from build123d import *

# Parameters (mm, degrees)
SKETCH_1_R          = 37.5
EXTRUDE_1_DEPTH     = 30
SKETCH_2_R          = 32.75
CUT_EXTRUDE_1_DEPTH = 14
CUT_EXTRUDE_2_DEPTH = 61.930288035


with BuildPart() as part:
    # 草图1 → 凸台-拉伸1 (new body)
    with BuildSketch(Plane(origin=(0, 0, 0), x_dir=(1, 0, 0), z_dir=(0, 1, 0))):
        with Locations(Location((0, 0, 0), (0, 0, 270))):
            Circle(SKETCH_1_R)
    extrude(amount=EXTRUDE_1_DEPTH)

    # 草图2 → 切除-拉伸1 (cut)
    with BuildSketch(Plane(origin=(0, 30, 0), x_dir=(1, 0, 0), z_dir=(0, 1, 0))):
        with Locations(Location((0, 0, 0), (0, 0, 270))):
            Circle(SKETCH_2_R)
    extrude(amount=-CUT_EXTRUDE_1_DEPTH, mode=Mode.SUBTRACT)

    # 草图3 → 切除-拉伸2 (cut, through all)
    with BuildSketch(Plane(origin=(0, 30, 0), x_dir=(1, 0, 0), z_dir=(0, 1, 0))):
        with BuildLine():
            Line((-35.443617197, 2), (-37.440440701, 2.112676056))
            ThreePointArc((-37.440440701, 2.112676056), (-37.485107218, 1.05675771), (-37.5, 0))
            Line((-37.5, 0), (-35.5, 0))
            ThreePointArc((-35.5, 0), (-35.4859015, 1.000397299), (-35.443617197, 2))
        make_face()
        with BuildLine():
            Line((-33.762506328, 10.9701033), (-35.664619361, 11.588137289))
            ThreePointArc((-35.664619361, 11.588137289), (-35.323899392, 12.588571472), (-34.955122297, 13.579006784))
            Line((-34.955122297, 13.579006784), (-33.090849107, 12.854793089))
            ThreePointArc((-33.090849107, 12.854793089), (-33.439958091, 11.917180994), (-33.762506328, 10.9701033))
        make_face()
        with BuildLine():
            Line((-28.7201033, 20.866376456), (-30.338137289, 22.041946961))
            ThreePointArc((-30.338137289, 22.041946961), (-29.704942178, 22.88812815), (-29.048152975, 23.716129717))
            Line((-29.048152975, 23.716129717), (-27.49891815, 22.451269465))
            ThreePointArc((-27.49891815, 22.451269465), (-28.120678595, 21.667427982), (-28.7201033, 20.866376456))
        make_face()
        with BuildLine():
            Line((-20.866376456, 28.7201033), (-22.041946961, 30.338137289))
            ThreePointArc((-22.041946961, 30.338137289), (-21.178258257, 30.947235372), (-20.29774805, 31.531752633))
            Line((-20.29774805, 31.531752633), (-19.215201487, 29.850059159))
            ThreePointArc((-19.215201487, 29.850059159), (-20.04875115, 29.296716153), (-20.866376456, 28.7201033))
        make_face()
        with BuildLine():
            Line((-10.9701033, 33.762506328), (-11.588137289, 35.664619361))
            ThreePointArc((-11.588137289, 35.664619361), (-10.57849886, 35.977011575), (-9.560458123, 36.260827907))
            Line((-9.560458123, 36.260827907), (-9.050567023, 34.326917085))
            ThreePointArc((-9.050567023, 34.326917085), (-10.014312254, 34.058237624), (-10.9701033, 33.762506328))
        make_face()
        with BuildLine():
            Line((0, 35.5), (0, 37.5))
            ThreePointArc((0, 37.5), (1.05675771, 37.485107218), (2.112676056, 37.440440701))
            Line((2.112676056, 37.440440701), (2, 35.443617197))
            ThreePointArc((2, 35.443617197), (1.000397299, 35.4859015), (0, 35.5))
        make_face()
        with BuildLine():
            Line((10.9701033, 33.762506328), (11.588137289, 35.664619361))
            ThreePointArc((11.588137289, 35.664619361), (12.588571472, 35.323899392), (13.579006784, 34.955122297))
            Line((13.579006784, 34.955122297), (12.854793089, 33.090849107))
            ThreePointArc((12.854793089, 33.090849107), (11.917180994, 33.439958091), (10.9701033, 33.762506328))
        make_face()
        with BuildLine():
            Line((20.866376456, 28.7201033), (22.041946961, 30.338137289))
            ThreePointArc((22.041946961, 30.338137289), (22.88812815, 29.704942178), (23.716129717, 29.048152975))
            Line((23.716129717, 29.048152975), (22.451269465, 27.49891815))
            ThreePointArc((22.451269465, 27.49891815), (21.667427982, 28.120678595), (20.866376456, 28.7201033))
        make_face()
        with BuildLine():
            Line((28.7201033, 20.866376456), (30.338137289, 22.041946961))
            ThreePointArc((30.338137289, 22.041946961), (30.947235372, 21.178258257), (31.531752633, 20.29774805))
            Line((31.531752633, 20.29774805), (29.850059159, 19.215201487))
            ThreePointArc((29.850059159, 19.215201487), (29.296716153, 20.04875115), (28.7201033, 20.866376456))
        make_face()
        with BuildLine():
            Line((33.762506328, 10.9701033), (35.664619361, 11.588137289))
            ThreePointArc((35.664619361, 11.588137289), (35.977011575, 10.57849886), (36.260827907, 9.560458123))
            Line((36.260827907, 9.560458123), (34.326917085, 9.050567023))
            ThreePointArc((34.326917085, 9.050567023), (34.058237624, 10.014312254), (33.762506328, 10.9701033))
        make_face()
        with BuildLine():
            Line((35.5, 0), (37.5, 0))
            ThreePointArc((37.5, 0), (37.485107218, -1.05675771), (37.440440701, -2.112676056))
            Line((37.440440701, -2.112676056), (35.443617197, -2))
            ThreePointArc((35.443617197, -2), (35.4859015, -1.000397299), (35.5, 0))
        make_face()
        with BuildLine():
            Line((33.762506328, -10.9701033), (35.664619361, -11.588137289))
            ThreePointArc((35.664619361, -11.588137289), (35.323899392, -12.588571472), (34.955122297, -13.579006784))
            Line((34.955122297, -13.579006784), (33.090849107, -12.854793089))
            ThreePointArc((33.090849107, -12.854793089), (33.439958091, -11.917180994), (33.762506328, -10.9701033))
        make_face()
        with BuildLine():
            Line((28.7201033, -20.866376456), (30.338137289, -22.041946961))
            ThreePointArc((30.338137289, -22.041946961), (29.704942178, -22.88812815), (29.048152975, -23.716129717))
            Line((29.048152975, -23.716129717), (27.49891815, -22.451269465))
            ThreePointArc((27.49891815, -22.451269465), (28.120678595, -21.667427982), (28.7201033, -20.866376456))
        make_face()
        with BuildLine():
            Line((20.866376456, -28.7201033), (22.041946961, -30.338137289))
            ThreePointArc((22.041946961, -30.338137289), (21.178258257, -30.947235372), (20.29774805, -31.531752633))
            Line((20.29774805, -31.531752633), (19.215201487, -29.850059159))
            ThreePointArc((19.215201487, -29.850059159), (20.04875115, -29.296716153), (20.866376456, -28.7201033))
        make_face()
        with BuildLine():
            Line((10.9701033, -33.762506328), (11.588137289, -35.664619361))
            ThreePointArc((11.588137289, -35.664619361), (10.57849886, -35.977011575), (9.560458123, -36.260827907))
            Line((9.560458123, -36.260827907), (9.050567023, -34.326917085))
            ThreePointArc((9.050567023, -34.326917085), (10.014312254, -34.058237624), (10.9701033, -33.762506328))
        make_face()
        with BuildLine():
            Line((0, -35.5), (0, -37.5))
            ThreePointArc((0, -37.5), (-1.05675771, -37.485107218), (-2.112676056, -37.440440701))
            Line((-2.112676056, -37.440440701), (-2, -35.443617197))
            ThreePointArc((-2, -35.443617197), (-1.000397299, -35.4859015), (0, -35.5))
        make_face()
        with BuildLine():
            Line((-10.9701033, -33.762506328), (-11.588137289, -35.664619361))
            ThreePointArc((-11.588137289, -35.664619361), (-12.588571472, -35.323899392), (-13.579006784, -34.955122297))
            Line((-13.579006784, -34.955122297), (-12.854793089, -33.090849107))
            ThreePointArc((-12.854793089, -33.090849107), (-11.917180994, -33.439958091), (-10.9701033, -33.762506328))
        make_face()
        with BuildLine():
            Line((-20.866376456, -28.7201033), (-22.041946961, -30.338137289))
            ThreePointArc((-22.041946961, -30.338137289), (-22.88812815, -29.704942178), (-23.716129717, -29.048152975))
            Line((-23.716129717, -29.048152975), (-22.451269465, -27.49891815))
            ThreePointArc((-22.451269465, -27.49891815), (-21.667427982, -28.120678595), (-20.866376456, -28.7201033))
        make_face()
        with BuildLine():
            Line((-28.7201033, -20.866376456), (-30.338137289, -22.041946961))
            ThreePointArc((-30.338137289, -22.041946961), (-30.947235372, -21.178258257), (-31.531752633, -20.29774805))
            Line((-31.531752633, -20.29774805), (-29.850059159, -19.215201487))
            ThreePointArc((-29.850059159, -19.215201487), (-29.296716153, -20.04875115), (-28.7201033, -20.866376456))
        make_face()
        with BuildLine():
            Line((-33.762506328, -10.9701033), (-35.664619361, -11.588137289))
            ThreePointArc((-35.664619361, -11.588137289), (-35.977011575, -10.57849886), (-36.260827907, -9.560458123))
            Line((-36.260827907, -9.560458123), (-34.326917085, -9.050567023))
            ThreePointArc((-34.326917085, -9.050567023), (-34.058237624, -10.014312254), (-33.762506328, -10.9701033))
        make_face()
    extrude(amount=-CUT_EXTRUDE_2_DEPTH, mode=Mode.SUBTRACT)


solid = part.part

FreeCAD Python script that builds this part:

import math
import FreeCAD as App
import Part
import Sketcher
Q = App.Units.Quantity

doc = App.newDocument("Part")
body = doc.addObject("PartDesign::Body", "Body")

# Sketch on XZ plane
sketch1 = body.newObject("Sketcher::SketchObject", "Sketch")
sketch1.AttachmentSupport = (doc.getObject("XZ_Plane"), [""])
sketch1.MapMode = "FlatFace"
sketch1.addGeometry(Part.Circle(App.Vector(0, 0, 0), App.Vector(0, 0, 1), 37.5), False)
sketch1.addConstraint(Sketcher.Constraint("Coincident", 0, 3, -1, 1))
sketch1.addConstraint(Sketcher.Constraint("Diameter", 0, Q("75 mm")))
pad1 = body.newObject("PartDesign::Pad", "Pad")
pad1.Profile = sketch1
pad1.Length = 30
pad1.Reversed = True

# Sketch on XZ plane
sketch2 = body.newObject("Sketcher::SketchObject", "Sketch001")
sketch2.AttachmentSupport = (doc.getObject("XZ_Plane"), [""])
sketch2.MapMode = "FlatFace"
sketch2.AttachmentOffset = App.Placement(App.Vector(0, 0, -30), App.Rotation())
sketch2.addGeometry(Part.Circle(App.Vector(0, 0, 0), App.Vector(0, 0, 1), 32.75), False)
sketch2.addConstraint(Sketcher.Constraint("Coincident", 0, 3, -1, 1))
sketch2.addConstraint(Sketcher.Constraint("Diameter", 0, Q("65.5 mm")))
pocket1 = body.newObject("PartDesign::Pocket", "Pocket")
pocket1.Profile = sketch2
pocket1.Length = 14
pocket1.Reversed = True

# Sketch on XZ plane
sketch3 = body.newObject("Sketcher::SketchObject", "Sketch002")
sketch3.AttachmentSupport = (doc.getObject("XZ_Plane"), [""])
sketch3.MapMode = "FlatFace"
sketch3.AttachmentOffset = App.Placement(App.Vector(0, 0, -30), App.Rotation())
sketch3.addGeometry(Part.LineSegment(App.Vector(-35.443617, -2, 0), App.Vector(-37.440441, -2.112676, 0)), False)
sketch3.addGeometry(Part.ArcOfCircle(Part.Circle(App.Vector(0, 0, 0), App.Vector(0, 0, 1), 37.5), math.radians(180), math.radians(183.229641)), False)
sketch3.addGeometry(Part.LineSegment(App.Vector(-37.5, 0, 0), App.Vector(-35.5, 0, 0)), False)
sketch3.addGeometry(Part.ArcOfCircle(Part.Circle(App.Vector(-0.000001, 0, 0), App.Vector(0, 0, 1), 35.499999), math.radians(180), math.radians(183.229641)), False)
sketch3.addGeometry(Part.LineSegment(App.Vector(-35.664619, -11.588137, 0), App.Vector(-33.762506, -10.970103, 0)), False)
sketch3.addGeometry(Part.ArcOfCircle(Part.Circle(App.Vector(0, 0, 0), App.Vector(0, 0, 1), 35.5), math.radians(-162), math.radians(-158.770359)), False)
sketch3.addGeometry(Part.LineSegment(App.Vector(-33.090849, -12.854793, 0), App.Vector(-34.955122, -13.579007, 0)), False)
sketch3.addGeometry(Part.ArcOfCircle(Part.Circle(App.Vector(0.000002, 0.000001, 0), App.Vector(0, 0, 1), 37.500002), math.radians(-162), math.radians(-158.770359)), False)
sketch3.addGeometry(Part.LineSegment(App.Vector(-30.338137, -22.041947, 0), App.Vector(-28.720103, -20.866376, 0)), False)
sketch3.addGeometry(Part.ArcOfCircle(Part.Circle(App.Vector(0, 0, 0), App.Vector(0, 0, 1), 35.5), math.radians(-144), math.radians(-140.770359)), False)
sketch3.addGeometry(Part.LineSegment(App.Vector(-27.498918, -22.451269, 0), App.Vector(-29.048153, -23.71613, 0)), False)
sketch3.addGeometry(Part.ArcOfCircle(Part.Circle(App.Vector(0, 0, 0), App.Vector(0, 0, 1), 37.5), math.radians(-144), math.radians(-140.770359)), False)
sketch3.addGeometry(Part.LineSegment(App.Vector(-22.041947, -30.338137, 0), App.Vector(-20.866376, -28.720103, 0)), False)
sketch3.addGeometry(Part.ArcOfCircle(Part.Circle(App.Vector(-0.000001, -0.000001, 0), App.Vector(0, 0, 1), 35.499998), math.radians(-126), math.radians(-122.770359)), False)
sketch3.addGeometry(Part.LineSegment(App.Vector(-19.215201, -29.850059, 0), App.Vector(-20.297748, -31.531753, 0)), False)
sketch3.addGeometry(Part.ArcOfCircle(Part.Circle(App.Vector(0.000001, 0.000001, 0), App.Vector(0, 0, 1), 37.500001), math.radians(-126), math.radians(-122.770359)), False)
sketch3.addGeometry(Part.LineSegment(App.Vector(-11.588137, -35.664619, 0), App.Vector(-10.970103, -33.762506, 0)), False)
sketch3.addGeometry(Part.ArcOfCircle(Part.Circle(App.Vector(0, 0, 0), App.Vector(0, 0, 1), 35.5), math.radians(-108), math.radians(-104.770359)), False)
sketch3.addGeometry(Part.LineSegment(App.Vector(-9.050567, -34.326917, 0), App.Vector(-9.560458, -36.260828, 0)), False)
sketch3.addGeometry(Part.ArcOfCircle(Part.Circle(App.Vector(0, 0, 0), App.Vector(0, 0, 1), 37.5), math.radians(-108), math.radians(-104.770359)), False)
sketch3.addGeometry(Part.LineSegment(App.Vector(0, -37.5, 0), App.Vector(0, -35.5, 0)), False)
sketch3.addGeometry(Part.ArcOfCircle(Part.Circle(App.Vector(0, -0.000001, 0), App.Vector(0, 0, 1), 35.499999), math.radians(-90), math.radians(-86.770359)), False)
sketch3.addGeometry(Part.LineSegment(App.Vector(2, -35.443617, 0), App.Vector(2.112676, -37.440441, 0)), False)
sketch3.addGeometry(Part.ArcOfCircle(Part.Circle(App.Vector(0, 0, 0), App.Vector(0, 0, 1), 37.5), math.radians(-90), math.radians(-86.770359)), False)
sketch3.addGeometry(Part.LineSegment(App.Vector(11.588137, -35.664619, 0), App.Vector(10.970103, -33.762506, 0)), False)
sketch3.addGeometry(Part.ArcOfCircle(Part.Circle(App.Vector(0, 0, 0), App.Vector(0, 0, 1), 35.5), math.radians(-72), math.radians(-68.770359)), False)
sketch3.addGeometry(Part.LineSegment(App.Vector(12.854793, -33.090849, 0), App.Vector(13.579007, -34.955122, 0)), False)
sketch3.addGeometry(Part.ArcOfCircle(Part.Circle(App.Vector(-0.000001, 0.000002, 0), App.Vector(0, 0, 1), 37.500002), math.radians(-72), math.radians(-68.770359)), False)
sketch3.addGeometry(Part.LineSegment(App.Vector(22.041947, -30.338137, 0), App.Vector(20.866376, -28.720103, 0)), False)
sketch3.addGeometry(Part.ArcOfCircle(Part.Circle(App.Vector(0, 0, 0), App.Vector(0, 0, 1), 35.5), math.radians(-54), math.radians(-50.770359)), False)
sketch3.addGeometry(Part.LineSegment(App.Vector(22.451269, -27.498918, 0), App.Vector(23.71613, -29.048153, 0)), False)
sketch3.addGeometry(Part.ArcOfCircle(Part.Circle(App.Vector(0, 0, 0), App.Vector(0, 0, 1), 37.5), math.radians(-54), math.radians(-50.770359)), False)
sketch3.addGeometry(Part.LineSegment(App.Vector(30.338137, -22.041947, 0), App.Vector(28.720103, -20.866376, 0)), False)
sketch3.addGeometry(Part.ArcOfCircle(Part.Circle(App.Vector(0.000001, -0.000001, 0), App.Vector(0, 0, 1), 35.499998), math.radians(-36), math.radians(-32.770359)), False)
sketch3.addGeometry(Part.LineSegment(App.Vector(29.850059, -19.215201, 0), App.Vector(31.531753, -20.297748, 0)), False)
sketch3.addGeometry(Part.ArcOfCircle(Part.Circle(App.Vector(-0.000001, 0.000001, 0), App.Vector(0, 0, 1), 37.500001), math.radians(-36), math.radians(-32.770359)), False)
sketch3.addGeometry(Part.LineSegment(App.Vector(35.664619, -11.588137, 0), App.Vector(33.762506, -10.970103, 0)), False)
sketch3.addGeometry(Part.ArcOfCircle(Part.Circle(App.Vector(0, 0, 0), App.Vector(0, 0, 1), 35.5), math.radians(-18), math.radians(-14.770359)), False)
sketch3.addGeometry(Part.LineSegment(App.Vector(34.326917, -9.050567, 0), App.Vector(36.260828, -9.560458, 0)), False)
sketch3.addGeometry(Part.ArcOfCircle(Part.Circle(App.Vector(0, 0, 0), App.Vector(0, 0, 1), 37.5), math.radians(-18), math.radians(-14.770359)), False)
sketch3.addGeometry(Part.LineSegment(App.Vector(37.5, 0, 0), App.Vector(35.5, 0, 0)), False)
sketch3.addGeometry(Part.ArcOfCircle(Part.Circle(App.Vector(0.000001, 0, 0), App.Vector(0, 0, 1), 35.499999), math.radians(0), math.radians(3.229641)), False)
sketch3.addGeometry(Part.LineSegment(App.Vector(35.443617, 2, 0), App.Vector(37.440441, 2.112676, 0)), False)
sketch3.addGeometry(Part.ArcOfCircle(Part.Circle(App.Vector(0, 0, 0), App.Vector(0, 0, 1), 37.5), math.radians(0), math.radians(3.229641)), False)
sketch3.addGeometry(Part.LineSegment(App.Vector(35.664619, 11.588137, 0), App.Vector(33.762506, 10.970103, 0)), False)
sketch3.addGeometry(Part.ArcOfCircle(Part.Circle(App.Vector(0, 0, 0), App.Vector(0, 0, 1), 35.5), math.radians(18), math.radians(21.229641)), False)
sketch3.addGeometry(Part.LineSegment(App.Vector(33.090849, 12.854793, 0), App.Vector(34.955122, 13.579007, 0)), False)
sketch3.addGeometry(Part.ArcOfCircle(Part.Circle(App.Vector(-0.000002, -0.000001, 0), App.Vector(0, 0, 1), 37.500002), math.radians(18), math.radians(21.229641)), False)
sketch3.addGeometry(Part.LineSegment(App.Vector(30.338137, 22.041947, 0), App.Vector(28.720103, 20.866376, 0)), False)
sketch3.addGeometry(Part.ArcOfCircle(Part.Circle(App.Vector(0, 0, 0), App.Vector(0, 0, 1), 35.5), math.radians(36), math.radians(39.229641)), False)
sketch3.addGeometry(Part.LineSegment(App.Vector(27.498918, 22.451269, 0), App.Vector(29.048153, 23.71613, 0)), False)
sketch3.addGeometry(Part.ArcOfCircle(Part.Circle(App.Vector(0, 0, 0), App.Vector(0, 0, 1), 37.5), math.radians(36), math.radians(39.229641)), False)
sketch3.addGeometry(Part.LineSegment(App.Vector(22.041947, 30.338137, 0), App.Vector(20.866376, 28.720103, 0)), False)
sketch3.addGeometry(Part.ArcOfCircle(Part.Circle(App.Vector(0.000001, 0.000001, 0), App.Vector(0, 0, 1), 35.499998), math.radians(54), math.radians(57.229641)), False)
sketch3.addGeometry(Part.LineSegment(App.Vector(19.215201, 29.850059, 0), App.Vector(20.297748, 31.531753, 0)), False)
sketch3.addGeometry(Part.ArcOfCircle(Part.Circle(App.Vector(-0.000001, -0.000001, 0), App.Vector(0, 0, 1), 37.500001), math.radians(54), math.radians(57.229641)), False)
sketch3.addGeometry(Part.LineSegment(App.Vector(11.588137, 35.664619, 0), App.Vector(10.970103, 33.762506, 0)), False)
sketch3.addGeometry(Part.ArcOfCircle(Part.Circle(App.Vector(0, 0, 0), App.Vector(0, 0, 1), 35.5), math.radians(72), math.radians(75.229641)), False)
sketch3.addGeometry(Part.LineSegment(App.Vector(9.050567, 34.326917, 0), App.Vector(9.560458, 36.260828, 0)), False)
sketch3.addGeometry(Part.ArcOfCircle(Part.Circle(App.Vector(0, 0, 0), App.Vector(0, 0, 1), 37.5), math.radians(72), math.radians(75.229641)), False)
sketch3.addGeometry(Part.LineSegment(App.Vector(0, 37.5, 0), App.Vector(0, 35.5, 0)), False)
sketch3.addGeometry(Part.ArcOfCircle(Part.Circle(App.Vector(0, 0.000001, 0), App.Vector(0, 0, 1), 35.499999), math.radians(90), math.radians(93.229641)), False)
sketch3.addGeometry(Part.LineSegment(App.Vector(-2, 35.443617, 0), App.Vector(-2.112676, 37.440441, 0)), False)
sketch3.addGeometry(Part.ArcOfCircle(Part.Circle(App.Vector(0, 0, 0), App.Vector(0, 0, 1), 37.5), math.radians(90), math.radians(93.229641)), False)
sketch3.addGeometry(Part.LineSegment(App.Vector(-11.588137, 35.664619, 0), App.Vector(-10.970103, 33.762506, 0)), False)
sketch3.addGeometry(Part.ArcOfCircle(Part.Circle(App.Vector(0, 0, 0), App.Vector(0, 0, 1), 35.5), math.radians(108), math.radians(111.229641)), False)
sketch3.addGeometry(Part.LineSegment(App.Vector(-12.854793, 33.090849, 0), App.Vector(-13.579007, 34.955122, 0)), False)
sketch3.addGeometry(Part.ArcOfCircle(Part.Circle(App.Vector(0.000001, -0.000002, 0), App.Vector(0, 0, 1), 37.500002), math.radians(108), math.radians(111.229641)), False)
sketch3.addGeometry(Part.LineSegment(App.Vector(-22.041947, 30.338137, 0), App.Vector(-20.866376, 28.720103, 0)), False)
sketch3.addGeometry(Part.ArcOfCircle(Part.Circle(App.Vector(0, 0, 0), App.Vector(0, 0, 1), 35.5), math.radians(126), math.radians(129.229641)), False)
sketch3.addGeometry(Part.LineSegment(App.Vector(-22.451269, 27.498918, 0), App.Vector(-23.71613, 29.048153, 0)), False)
sketch3.addGeometry(Part.ArcOfCircle(Part.Circle(App.Vector(0, 0, 0), App.Vector(0, 0, 1), 37.5), math.radians(126), math.radians(129.229641)), False)
sketch3.addGeometry(Part.LineSegment(App.Vector(-30.338137, 22.041947, 0), App.Vector(-28.720103, 20.866376, 0)), False)
sketch3.addGeometry(Part.ArcOfCircle(Part.Circle(App.Vector(-0.000001, 0.000001, 0), App.Vector(0, 0, 1), 35.499998), math.radians(144), math.radians(147.229641)), False)
sketch3.addGeometry(Part.LineSegment(App.Vector(-29.850059, 19.215201, 0), App.Vector(-31.531753, 20.297748, 0)), False)
sketch3.addGeometry(Part.ArcOfCircle(Part.Circle(App.Vector(0.000001, -0.000001, 0), App.Vector(0, 0, 1), 37.500001), math.radians(144), math.radians(147.229641)), False)
sketch3.addGeometry(Part.LineSegment(App.Vector(-35.664619, 11.588137, 0), App.Vector(-33.762506, 10.970103, 0)), False)
sketch3.addGeometry(Part.ArcOfCircle(Part.Circle(App.Vector(0, 0, 0), App.Vector(0, 0, 1), 35.5), math.radians(162), math.radians(165.229641)), False)
sketch3.addGeometry(Part.LineSegment(App.Vector(-34.326917, 9.050567, 0), App.Vector(-36.260828, 9.560458, 0)), False)
sketch3.addGeometry(Part.ArcOfCircle(Part.Circle(App.Vector(0, 0, 0), App.Vector(0, 0, 1), 37.5), math.radians(162), math.radians(165.229641)), False)
sketch3.addConstraint(Sketcher.Constraint("Coincident", 0, 2, 1, 2))
sketch3.addConstraint(Sketcher.Constraint("Coincident", 1, 1, 2, 1))
sketch3.addConstraint(Sketcher.Constraint("Coincident", 2, 2, 3, 1))
sketch3.addConstraint(Sketcher.Constraint("Coincident", 3, 2, 0, 1))
sketch3.addConstraint(Sketcher.Constraint("Coincident", 4, 2, 5, 1))
sketch3.addConstraint(Sketcher.Constraint("Coincident", 5, 2, 6, 1))
sketch3.addConstraint(Sketcher.Constraint("Coincident", 6, 2, 7, 2))
sketch3.addConstraint(Sketcher.Constraint("Coincident", 7, 1, 4, 1))
sketch3.addConstraint(Sketcher.Constraint("Coincident", 8, 2, 9, 1))
sketch3.addConstraint(Sketcher.Constraint("Coincident", 9, 2, 10, 1))
sketch3.addConstraint(Sketcher.Constraint("Coincident", 10, 2, 11, 2))
sketch3.addConstraint(Sketcher.Constraint("Coincident", 11, 1, 8, 1))
sketch3.addConstraint(Sketcher.Constraint("Coincident", 12, 2, 13, 1))
sketch3.addConstraint(Sketcher.Constraint("Coincident", 13, 2, 14, 1))
sketch3.addConstraint(Sketcher.Constraint("Coincident", 14, 2, 15, 2))
sketch3.addConstraint(Sketcher.Constraint("Coincident", 15, 1, 12, 1))
sketch3.addConstraint(Sketcher.Constraint("Coincident", 16, 2, 17, 1))
sketch3.addConstraint(Sketcher.Constraint("Coincident", 17, 2, 18, 1))
sketch3.addConstraint(Sketcher.Constraint("Coincident", 18, 2, 19, 2))
sketch3.addConstraint(Sketcher.Constraint("Coincident", 19, 1, 16, 1))
sketch3.addConstraint(Sketcher.Constraint("Coincident", 20, 2, 21, 1))
sketch3.addConstraint(Sketcher.Constraint("Coincident", 21, 2, 22, 1))
sketch3.addConstraint(Sketcher.Constraint("Coincident", 22, 2, 23, 2))
sketch3.addConstraint(Sketcher.Constraint("Coincident", 23, 1, 20, 1))
sketch3.addConstraint(Sketcher.Constraint("Coincident", 24, 2, 25, 1))
sketch3.addConstraint(Sketcher.Constraint("Coincident", 25, 2, 26, 1))
sketch3.addConstraint(Sketcher.Constraint("Coincident", 26, 2, 27, 2))
sketch3.addConstraint(Sketcher.Constraint("Coincident", 27, 1, 24, 1))
sketch3.addConstraint(Sketcher.Constraint("Coincident", 28, 2, 29, 1))
sketch3.addConstraint(Sketcher.Constraint("Coincident", 29, 2, 30, 1))
sketch3.addConstraint(Sketcher.Constraint("Coincident", 30, 2, 31, 2))
sketch3.addConstraint(Sketcher.Constraint("Coincident", 31, 1, 28, 1))
sketch3.addConstraint(Sketcher.Constraint("Coincident", 32, 2, 33, 1))
sketch3.addConstraint(Sketcher.Constraint("Coincident", 33, 2, 34, 1))
sketch3.addConstraint(Sketcher.Constraint("Coincident", 34, 2, 35, 2))
sketch3.addConstraint(Sketcher.Constraint("Coincident", 35, 1, 32, 1))
sketch3.addConstraint(Sketcher.Constraint("Coincident", 36, 2, 37, 1))
sketch3.addConstraint(Sketcher.Constraint("Coincident", 37, 2, 38, 1))
sketch3.addConstraint(Sketcher.Constraint("Coincident", 38, 2, 39, 2))
sketch3.addConstraint(Sketcher.Constraint("Coincident", 39, 1, 36, 1))
sketch3.addConstraint(Sketcher.Constraint("Coincident", 40, 2, 41, 1))
sketch3.addConstraint(Sketcher.Constraint("Coincident", 41, 2, 42, 1))
sketch3.addConstraint(Sketcher.Constraint("Coincident", 42, 2, 43, 2))
sketch3.addConstraint(Sketcher.Constraint("Coincident", 43, 1, 40, 1))
sketch3.addConstraint(Sketcher.Constraint("Coincident", 44, 2, 45, 1))
sketch3.addConstraint(Sketcher.Constraint("Coincident", 45, 2, 46, 1))
sketch3.addConstraint(Sketcher.Constraint("Coincident", 46, 2, 47, 2))
sketch3.addConstraint(Sketcher.Constraint("Coincident", 47, 1, 44, 1))
sketch3.addConstraint(Sketcher.Constraint("Coincident", 48, 2, 49, 1))
sketch3.addConstraint(Sketcher.Constraint("Coincident", 49, 2, 50, 1))
sketch3.addConstraint(Sketcher.Constraint("Coincident", 50, 2, 51, 2))
sketch3.addConstraint(Sketcher.Constraint("Coincident", 51, 1, 48, 1))
sketch3.addConstraint(Sketcher.Constraint("Coincident", 52, 2, 53, 1))
sketch3.addConstraint(Sketcher.Constraint("Coincident", 53, 2, 54, 1))
sketch3.addConstraint(Sketcher.Constraint("Coincident", 54, 2, 55, 2))
sketch3.addConstraint(Sketcher.Constraint("Coincident", 55, 1, 52, 1))
sketch3.addConstraint(Sketcher.Constraint("Coincident", 56, 2, 57, 1))
sketch3.addConstraint(Sketcher.Constraint("Coincident", 57, 2, 58, 1))
sketch3.addConstraint(Sketcher.Constraint("Coincident", 58, 2, 59, 2))
sketch3.addConstraint(Sketcher.Constraint("Coincident", 59, 1, 56, 1))
sketch3.addConstraint(Sketcher.Constraint("Coincident", 60, 2, 61, 1))
sketch3.addConstraint(Sketcher.Constraint("Coincident", 61, 2, 62, 1))
sketch3.addConstraint(Sketcher.Constraint("Coincident", 62, 2, 63, 2))
sketch3.addConstraint(Sketcher.Constraint("Coincident", 63, 1, 60, 1))
sketch3.addConstraint(Sketcher.Constraint("Coincident", 64, 2, 65, 1))
sketch3.addConstraint(Sketcher.Constraint("Coincident", 65, 2, 66, 1))
sketch3.addConstraint(Sketcher.Constraint("Coincident", 66, 2, 67, 2))
sketch3.addConstraint(Sketcher.Constraint("Coincident", 67, 1, 64, 1))
sketch3.addConstraint(Sketcher.Constraint("Coincident", 68, 2, 69, 1))
sketch3.addConstraint(Sketcher.Constraint("Coincident", 69, 2, 70, 1))
sketch3.addConstraint(Sketcher.Constraint("Coincident", 70, 2, 71, 2))
sketch3.addConstraint(Sketcher.Constraint("Coincident", 71, 1, 68, 1))
sketch3.addConstraint(Sketcher.Constraint("Coincident", 72, 2, 73, 1))
sketch3.addConstraint(Sketcher.Constraint("Coincident", 73, 2, 74, 1))
sketch3.addConstraint(Sketcher.Constraint("Coincident", 74, 2, 75, 2))
sketch3.addConstraint(Sketcher.Constraint("Coincident", 75, 1, 72, 1))
sketch3.addConstraint(Sketcher.Constraint("Coincident", 76, 2, 77, 1))
sketch3.addConstraint(Sketcher.Constraint("Coincident", 77, 2, 78, 1))
sketch3.addConstraint(Sketcher.Constraint("Coincident", 78, 2, 79, 2))
sketch3.addConstraint(Sketcher.Constraint("Coincident", 79, 1, 76, 1))
sketch3.addConstraint(Sketcher.Constraint("Horizontal", 2))
sketch3.addConstraint(Sketcher.Constraint("Vertical", 20))
sketch3.addConstraint(Sketcher.Constraint("Horizontal", 40))
sketch3.addConstraint(Sketcher.Constraint("Vertical", 60))
sketch3.addConstraint(Sketcher.Constraint("Coincident", 1, 3, -1, 1))
sketch3.addConstraint(Sketcher.Constraint("Coincident", 3, 3, -1, 1))
sketch3.addConstraint(Sketcher.Constraint("Coincident", 5, 3, -1, 1))
sketch3.addConstraint(Sketcher.Constraint("Coincident", 7, 3, -1, 1))
sketch3.addConstraint(Sketcher.Constraint("Coincident", 9, 3, -1, 1))
sketch3.addConstraint(Sketcher.Constraint("Coincident", 11, 3, -1, 1))
sketch3.addConstraint(Sketcher.Constraint("Coincident", 13, 3, -1, 1))
sketch3.addConstraint(Sketcher.Constraint("Coincident", 15, 3, -1, 1))
sketch3.addConstraint(Sketcher.Constraint("Coincident", 17, 3, -1, 1))
sketch3.addConstraint(Sketcher.Constraint("Coincident", 19, 3, -1, 1))
sketch3.addConstraint(Sketcher.Constraint("Coincident", 21, 3, -1, 1))
sketch3.addConstraint(Sketcher.Constraint("Coincident", 23, 3, -1, 1))
sketch3.addConstraint(Sketcher.Constraint("Coincident", 25, 3, -1, 1))
sketch3.addConstraint(Sketcher.Constraint("Coincident", 27, 3, -1, 1))
sketch3.addConstraint(Sketcher.Constraint("Coincident", 29, 3, -1, 1))
sketch3.addConstraint(Sketcher.Constraint("Coincident", 31, 3, -1, 1))
sketch3.addConstraint(Sketcher.Constraint("Coincident", 33, 3, -1, 1))
sketch3.addConstraint(Sketcher.Constraint("Coincident", 35, 3, -1, 1))
sketch3.addConstraint(Sketcher.Constraint("Coincident", 37, 3, -1, 1))
sketch3.addConstraint(Sketcher.Constraint("Coincident", 39, 3, -1, 1))
sketch3.addConstraint(Sketcher.Constraint("Coincident", 41, 3, -1, 1))
sketch3.addConstraint(Sketcher.Constraint("Coincident", 43, 3, -1, 1))
sketch3.addConstraint(Sketcher.Constraint("Coincident", 45, 3, -1, 1))
sketch3.addConstraint(Sketcher.Constraint("Coincident", 47, 3, -1, 1))
sketch3.addConstraint(Sketcher.Constraint("Coincident", 49, 3, -1, 1))
sketch3.addConstraint(Sketcher.Constraint("Coincident", 51, 3, -1, 1))
sketch3.addConstraint(Sketcher.Constraint("Coincident", 53, 3, -1, 1))
sketch3.addConstraint(Sketcher.Constraint("Coincident", 55, 3, -1, 1))
sketch3.addConstraint(Sketcher.Constraint("Coincident", 57, 3, -1, 1))
sketch3.addConstraint(Sketcher.Constraint("Coincident", 59, 3, -1, 1))
sketch3.addConstraint(Sketcher.Constraint("Coincident", 61, 3, -1, 1))
sketch3.addConstraint(Sketcher.Constraint("Coincident", 63, 3, -1, 1))
sketch3.addConstraint(Sketcher.Constraint("Coincident", 65, 3, -1, 1))
sketch3.addConstraint(Sketcher.Constraint("Coincident", 67, 3, -1, 1))
sketch3.addConstraint(Sketcher.Constraint("Coincident", 69, 3, -1, 1))
sketch3.addConstraint(Sketcher.Constraint("Coincident", 71, 3, -1, 1))
sketch3.addConstraint(Sketcher.Constraint("Coincident", 73, 3, -1, 1))
sketch3.addConstraint(Sketcher.Constraint("Coincident", 75, 3, -1, 1))
sketch3.addConstraint(Sketcher.Constraint("Coincident", 77, 3, -1, 1))
sketch3.addConstraint(Sketcher.Constraint("Coincident", 79, 3, -1, 1))
sketch3.addConstraint(Sketcher.Constraint("Equal", 3, 5))
sketch3.addConstraint(Sketcher.Constraint("Equal", 1, 7))
sketch3.addConstraint(Sketcher.Constraint("Equal", 5, 9))
sketch3.addConstraint(Sketcher.Constraint("Equal", 7, 11))
sketch3.addConstraint(Sketcher.Constraint("Equal", 9, 13))
sketch3.addConstraint(Sketcher.Constraint("Equal", 11, 15))
sketch3.addConstraint(Sketcher.Constraint("Equal", 13, 17))
sketch3.addConstraint(Sketcher.Constraint("Equal", 15, 19))
sketch3.addConstraint(Sketcher.Constraint("Equal", 17, 21))
sketch3.addConstraint(Sketcher.Constraint("Equal", 19, 23))
sketch3.addConstraint(Sketcher.Constraint("Equal", 21, 25))
sketch3.addConstraint(Sketcher.Constraint("Equal", 23, 27))
sketch3.addConstraint(Sketcher.Constraint("Equal", 25, 29))
sketch3.addConstraint(Sketcher.Constraint("Equal", 27, 31))
sketch3.addConstraint(Sketcher.Constraint("Equal", 29, 33))
sketch3.addConstraint(Sketcher.Constraint("Equal", 31, 35))
sketch3.addConstraint(Sketcher.Constraint("Equal", 33, 37))
sketch3.addConstraint(Sketcher.Constraint("Equal", 35, 39))
sketch3.addConstraint(Sketcher.Constraint("Equal", 37, 41))
sketch3.addConstraint(Sketcher.Constraint("Equal", 39, 43))
sketch3.addConstraint(Sketcher.Constraint("Equal", 41, 45))
sketch3.addConstraint(Sketcher.Constraint("Equal", 43, 47))
sketch3.addConstraint(Sketcher.Constraint("Equal", 45, 49))
sketch3.addConstraint(Sketcher.Constraint("Equal", 47, 51))
sketch3.addConstraint(Sketcher.Constraint("Equal", 49, 53))
sketch3.addConstraint(Sketcher.Constraint("Equal", 51, 55))
sketch3.addConstraint(Sketcher.Constraint("Equal", 53, 57))
sketch3.addConstraint(Sketcher.Constraint("Equal", 55, 59))
sketch3.addConstraint(Sketcher.Constraint("Equal", 57, 61))
sketch3.addConstraint(Sketcher.Constraint("Equal", 59, 63))
sketch3.addConstraint(Sketcher.Constraint("Equal", 61, 65))
sketch3.addConstraint(Sketcher.Constraint("Equal", 63, 67))
sketch3.addConstraint(Sketcher.Constraint("Equal", 65, 69))
sketch3.addConstraint(Sketcher.Constraint("Equal", 67, 71))
sketch3.addConstraint(Sketcher.Constraint("Equal", 69, 73))
sketch3.addConstraint(Sketcher.Constraint("Equal", 71, 75))
sketch3.addConstraint(Sketcher.Constraint("Equal", 73, 77))
sketch3.addConstraint(Sketcher.Constraint("Equal", 75, 79))
sketch3.addConstraint(Sketcher.Constraint("PointOnObject", 1, 1, -1))
sketch3.addConstraint(Sketcher.Constraint("PointOnObject", 20, 2, -2))
sketch3.addConstraint(Sketcher.Constraint("PointOnObject", 40, 2, -1))
sketch3.addConstraint(Sketcher.Constraint("PointOnObject", 60, 2, -2))
sketch3.addConstraint(Sketcher.Constraint("Perpendicular", 0, 22))
sketch3.addConstraint(Sketcher.Constraint("Perpendicular", 4, 24))
sketch3.addConstraint(Sketcher.Constraint("Perpendicular", 6, 26))
sketch3.addConstraint(Sketcher.Constraint("Perpendicular", 8, 28))
sketch3.addConstraint(Sketcher.Constraint("Perpendicular", 10, 30))
sketch3.addConstraint(Sketcher.Constraint("Perpendicular", 12, 32))
sketch3.addConstraint(Sketcher.Constraint("Perpendicular", 14, 34))
sketch3.addConstraint(Sketcher.Constraint("Perpendicular", 16, 36))
sketch3.addConstraint(Sketcher.Constraint("Perpendicular", 18, 38))
sketch3.addConstraint(Sketcher.Constraint("Perpendicular", 22, 42))
sketch3.addConstraint(Sketcher.Constraint("Perpendicular", 24, 44))
sketch3.addConstraint(Sketcher.Constraint("Perpendicular", 26, 46))
sketch3.addConstraint(Sketcher.Constraint("Perpendicular", 28, 48))
sketch3.addConstraint(Sketcher.Constraint("Perpendicular", 30, 50))
sketch3.addConstraint(Sketcher.Constraint("Perpendicular", 32, 52))
sketch3.addConstraint(Sketcher.Constraint("Perpendicular", 34, 54))
sketch3.addConstraint(Sketcher.Constraint("Perpendicular", 36, 56))
sketch3.addConstraint(Sketcher.Constraint("Perpendicular", 38, 58))
sketch3.addConstraint(Sketcher.Constraint("Perpendicular", 42, 62))
sketch3.addConstraint(Sketcher.Constraint("Perpendicular", 44, 64))
sketch3.addConstraint(Sketcher.Constraint("Perpendicular", 46, 66))
sketch3.addConstraint(Sketcher.Constraint("Perpendicular", 48, 68))
sketch3.addConstraint(Sketcher.Constraint("Perpendicular", 50, 70))
sketch3.addConstraint(Sketcher.Constraint("Perpendicular", 52, 72))
sketch3.addConstraint(Sketcher.Constraint("Perpendicular", 54, 74))
sketch3.addConstraint(Sketcher.Constraint("Perpendicular", 56, 76))
sketch3.addConstraint(Sketcher.Constraint("Perpendicular", 58, 78))
sketch3.addConstraint(Sketcher.Constraint("Horizontal", 16, 2, 24, 2))
sketch3.addConstraint(Sketcher.Constraint("Horizontal", 19, 1, 27, 1))
sketch3.addConstraint(Sketcher.Constraint("Horizontal", 12, 2, 28, 2))
sketch3.addConstraint(Sketcher.Constraint("Horizontal", 15, 1, 31, 1))
sketch3.addConstraint(Sketcher.Constraint("Horizontal", 8, 2, 32, 2))
sketch3.addConstraint(Sketcher.Constraint("Horizontal", 4, 2, 36, 2))
sketch3.addConstraint(Sketcher.Constraint("Horizontal", 56, 2, 64, 2))
sketch3.addConstraint(Sketcher.Constraint("Horizontal", 52, 2, 68, 2))
sketch3.addConstraint(Sketcher.Constraint("Horizontal", 48, 2, 72, 2))
sketch3.addConstraint(Sketcher.Constraint("Horizontal", 44, 2, 76, 2))
sketch3.addConstraint(Sketcher.Constraint("Vertical", 36, 2, 44, 2))
sketch3.addConstraint(Sketcher.Constraint("Vertical", 32, 2, 48, 2))
sketch3.addConstraint(Sketcher.Constraint("Vertical", 28, 2, 52, 2))
sketch3.addConstraint(Sketcher.Constraint("Vertical", 24, 2, 56, 2))
sketch3.addConstraint(Sketcher.Constraint("Radius", 1, Q("37.5 mm")))
sketch3.addConstraint(Sketcher.Constraint("Radius", 3, Q("35.499999 mm")))
sketch3.addConstraint(Sketcher.Constraint("Angle", 4, Q("18 deg")))
sketch3.addConstraint(Sketcher.Constraint("Angle", 8, Q("36 deg")))
sketch3.addConstraint(Sketcher.Constraint("DistanceY", 3, 2, -1, 1, Q("2 mm")))
sketch3.addConstraint(Sketcher.Constraint("DistanceX", -1, 1, 21, 2, Q("2 mm")))
sketch3.addConstraint(Sketcher.Constraint("DistanceY", -1, 1, 41, 2, Q("2 mm")))
sketch3.addConstraint(Sketcher.Constraint("DistanceX", 61, 2, -1, 1, Q("2 mm")))
sketch3.addConstraint(Sketcher.Constraint("DistanceX", 13, 2, -1, 1, Q("19.215201 mm")))
sketch3.addConstraint(Sketcher.Constraint("DistanceY", 33, 2, -1, 1, Q("19.215201 mm")))
sketch3.addConstraint(Sketcher.Constraint("DistanceX", -1, 1, 53, 2, Q("19.215201 mm")))
sketch3.addConstraint(Sketcher.Constraint("DistanceY", -1, 1, 73, 2, Q("19.215201 mm")))
sketch3.addConstraint(Sketcher.Constraint("DistanceX", 0, 2, -1, 1, Q("37.440441 mm")))
sketch3.addConstraint(Sketcher.Constraint("DistanceX", 5, 2, -1, 1, Q("33.090849 mm")))
sketch3.addConstraint(Sketcher.Constraint("DistanceX", 7, 1, -1, 1, Q("35.664619 mm")))
sketch3.addConstraint(Sketcher.Constraint("DistanceX", 9, 2, -1, 1, Q("27.498918 mm")))
sketch3.addConstraint(Sketcher.Constraint("DistanceY", 10, 2, -1, 1, Q("23.71613 mm")))
sketch3.addConstraint(Sketcher.Constraint("DistanceX", 14, 2, -1, 1, Q("20.297748 mm")))
sketch3.addConstraint(Sketcher.Constraint("DistanceX", 18, 2, -1, 1, Q("9.560458 mm")))
sketch3.addConstraint(Sketcher.Constraint("DistanceY", 19, 1, -1, 1, Q("35.664619 mm")))
sketch3.addConstraint(Sketcher.Constraint("DistanceY", 25, 2, -1, 1, Q("33.090849 mm")))
sketch3.addConstraint(Sketcher.Constraint("DistanceX", -1, 1, 29, 2, Q("22.451269 mm")))
sketch3.addConstraint(Sketcher.Constraint("DistanceY", 38, 2, -1, 1, Q("9.560458 mm")))
sketch3.addConstraint(Sketcher.Constraint("DistanceX", -1, 1, 45, 2, Q("33.090849 mm")))
sketch3.addConstraint(Sketcher.Constraint("DistanceX", -1, 1, 49, 2, Q("27.498918 mm")))
sketch3.addConstraint(Sketcher.Constraint("DistanceX", -1, 1, 58, 2, Q("9.560458 mm")))
sketch3.addConstraint(Sketcher.Constraint("DistanceY", -1, 1, 65, 2, Q("33.090849 mm")))
sketch3.addConstraint(Sketcher.Constraint("DistanceX", 69, 2, -1, 1, Q("22.451269 mm")))
sketch3.addConstraint(Sketcher.Constraint("DistanceY", -1, 1, 78, 2, Q("9.560458 mm")))
sketch3.addConstraint(Sketcher.Constraint("DistanceX", 6, 2, -1, 1, Q("34.955122 mm")))
sketch3.addConstraint(Sketcher.Constraint("DistanceX", 8, 2, -1, 1, Q("28.720103 mm")))
sketch3.addConstraint(Sketcher.Constraint("DistanceX", 12, 2, -1, 1, Q("20.866376 mm")))
sketch3.addConstraint(Sketcher.Constraint("DistanceX", 17, 2, -1, 1, Q("9.050567 mm")))
pocket2 = body.newObject("PartDesign::Pocket", "Pocket001")
pocket2.Profile = sketch3
pocket2.Type = "ThroughAll"
pocket2.Reversed = True

doc.recompute()
